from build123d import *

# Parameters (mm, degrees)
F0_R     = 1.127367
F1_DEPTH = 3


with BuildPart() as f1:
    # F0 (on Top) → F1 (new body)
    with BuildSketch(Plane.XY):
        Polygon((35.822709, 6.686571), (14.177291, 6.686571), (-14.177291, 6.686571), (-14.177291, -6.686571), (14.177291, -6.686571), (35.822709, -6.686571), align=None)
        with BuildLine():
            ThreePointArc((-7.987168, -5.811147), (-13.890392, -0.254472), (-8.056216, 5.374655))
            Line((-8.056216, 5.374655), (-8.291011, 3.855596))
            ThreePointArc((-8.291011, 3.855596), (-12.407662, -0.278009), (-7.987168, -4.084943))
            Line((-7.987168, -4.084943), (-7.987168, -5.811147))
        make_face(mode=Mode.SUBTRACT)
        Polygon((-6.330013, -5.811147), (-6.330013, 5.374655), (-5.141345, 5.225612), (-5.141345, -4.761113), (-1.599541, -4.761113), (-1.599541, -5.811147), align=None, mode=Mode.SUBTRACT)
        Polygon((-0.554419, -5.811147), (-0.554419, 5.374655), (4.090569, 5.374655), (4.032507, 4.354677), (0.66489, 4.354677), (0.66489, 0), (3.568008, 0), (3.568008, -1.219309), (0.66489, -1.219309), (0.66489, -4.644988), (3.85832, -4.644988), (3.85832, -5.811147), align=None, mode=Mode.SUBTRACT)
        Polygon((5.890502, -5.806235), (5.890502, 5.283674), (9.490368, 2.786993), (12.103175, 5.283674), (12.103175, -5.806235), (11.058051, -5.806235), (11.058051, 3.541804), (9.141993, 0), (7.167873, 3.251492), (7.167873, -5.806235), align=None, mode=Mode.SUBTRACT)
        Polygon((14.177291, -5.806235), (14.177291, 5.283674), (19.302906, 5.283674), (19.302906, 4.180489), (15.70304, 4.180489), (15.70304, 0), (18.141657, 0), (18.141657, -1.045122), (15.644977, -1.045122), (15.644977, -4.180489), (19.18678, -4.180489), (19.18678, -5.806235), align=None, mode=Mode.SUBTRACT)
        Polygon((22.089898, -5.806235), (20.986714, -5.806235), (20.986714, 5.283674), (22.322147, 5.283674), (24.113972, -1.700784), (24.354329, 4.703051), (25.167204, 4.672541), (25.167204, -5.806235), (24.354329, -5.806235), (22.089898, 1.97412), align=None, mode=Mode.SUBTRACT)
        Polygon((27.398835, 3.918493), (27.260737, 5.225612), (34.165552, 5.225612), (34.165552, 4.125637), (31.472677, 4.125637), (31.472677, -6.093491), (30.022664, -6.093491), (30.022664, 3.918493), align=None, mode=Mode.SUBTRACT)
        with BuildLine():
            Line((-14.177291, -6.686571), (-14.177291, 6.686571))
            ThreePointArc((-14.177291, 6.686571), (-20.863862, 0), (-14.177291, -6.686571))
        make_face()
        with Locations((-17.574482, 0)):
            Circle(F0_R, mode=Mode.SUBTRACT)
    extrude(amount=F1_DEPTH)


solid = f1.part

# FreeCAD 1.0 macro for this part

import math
import FreeCAD as App
import Part
import Sketcher

doc = App.newDocument("Part")
body = doc.addObject("PartDesign::Body", "Body")

sketch1 = doc.addObject("Sketcher::SketchObject", "Sketch")
body.addObject(sketch1)
sketch1.AttachmentSupport = (doc.XY_Plane, [""])
sketch1.MapMode = "FlatFace"
sketch1.addGeometry([
    Part.LineSegment(App.Vector(35.8, 6.7, 0), App.Vector(-14.2, 6.7, 0)),
    Part.ArcOfCircle(Part.Circle(App.Vector(-14.2, 0, 0), App.Vector(0, 0, 1), 6.7), math.radians(90), math.radians(270)),
    Part.LineSegment(App.Vector(-14.2, -6.7, 0), App.Vector(35.8, -6.7, 0)),
    Part.LineSegment(App.Vector(35.8, -6.7, 0), App.Vector(35.8, 6.7, 0)),
    Part.LineSegment(App.Vector(30, 3.9, 0), App.Vector(27.4, 3.9, 0)),
    Part.LineSegment(App.Vector(27.4, 3.9, 0), App.Vector(27.3, 5.2, 0)),
    Part.LineSegment(App.Vector(27.3, 5.2, 0), App.Vector(34.2, 5.2, 0)),
    Part.LineSegment(App.Vector(34.2, 5.2, 0), App.Vector(34.2, 4.1, 0)),
    Part.LineSegment(App.Vector(34.2, 4.1, 0), App.Vector(31.5, 4.1, 0)),
    Part.LineSegment(App.Vector(31.5, 4.1, 0), App.Vector(31.5, -6.1, 0)),
    Part.LineSegment(App.Vector(31.5, -6.1, 0), App.Vector(30, -6.1, 0)),
    Part.LineSegment(App.Vector(30, -6.1, 0), App.Vector(30, 3.9, 0)),
    Part.Circle(App.Vector(-17.6, 0, 0), App.Vector(0, 0, 1), 1.1),
    Part.LineSegment(App.Vector(-8, -4.1, 0), App.Vector(-8, -5.8, 0)),
    Part.ArcOfCircle(Part.Circle(App.Vector(-8.3, -0.2, 0), App.Vector(0, 0, 1), 5.6), math.radians(88), math.radians(273)),
    Part.LineSegment(App.Vector(-8.1, 5.4, 0), App.Vector(-8.3, 3.9, 0)),
    Part.ArcOfCircle(Part.Circle(App.Vector(-8.4, -0.1, 0), App.Vector(0, 0, 1), 4), math.radians(88), math.radians(276)),
    Part.LineSegment(App.Vector(-1.6, -5.8, 0), App.Vector(-6.3, -5.8, 0)),
    Part.LineSegment(App.Vector(-6.3, -5.8, 0), App.Vector(-6.3, 5.4, 0)),
    Part.LineSegment(App.Vector(-6.3, 5.4, 0), App.Vector(-5.1, 5.2, 0)),
    Part.LineSegment(App.Vector(-5.1, 5.2, 0), App.Vector(-5.1, -4.8, 0)),
    Part.LineSegment(App.Vector(-5.1, -4.8, 0), App.Vector(-1.6, -4.8, 0)),
    Part.LineSegment(App.Vector(-1.6, -4.8, 0), App.Vector(-1.6, -5.8, 0)),
    Part.LineSegment(App.Vector(3.9, -5.8, 0), App.Vector(-0.6, -5.8, 0)),
    Part.LineSegment(App.Vector(-0.6, -5.8, 0), App.Vector(-0.6, 5.4, 0)),
    Part.LineSegment(App.Vector(-0.6, 5.4, 0), App.Vector(4.1, 5.4, 0)),
    Part.LineSegment(App.Vector(4.1, 5.4, 0), App.Vector(4, 4.4, 0)),
    Part.LineSegment(App.Vector(4, 4.4, 0), App.Vector(0.7, 4.4, 0)),
    Part.LineSegment(App.Vector(0.7, 4.4, 0), App.Vector(0.7, 0, 0)),
    Part.LineSegment(App.Vector(0.7, 0, 0), App.Vector(3.6, 0, 0)),
    Part.LineSegment(App.Vector(3.6, 0, 0), App.Vector(3.6, -1.2, 0)),
    Part.LineSegment(App.Vector(3.6, -1.2, 0), App.Vector(0.7, -1.2, 0)),
    Part.LineSegment(App.Vector(0.7, -1.2, 0), App.Vector(0.7, -4.6, 0)),
    Part.LineSegment(App.Vector(0.7, -4.6, 0), App.Vector(3.9, -4.6, 0)),
    Part.LineSegment(App.Vector(3.9, -4.6, 0), App.Vector(3.9, -5.8, 0)),
    Part.LineSegment(App.Vector(7.2, -5.8, 0), App.Vector(5.9, -5.8, 0)),
    Part.LineSegment(App.Vector(5.9, -5.8, 0), App.Vector(5.9, 5.3, 0)),
    Part.LineSegment(App.Vector(5.9, 5.3, 0), App.Vector(9.5, 2.8, 0)),
    Part.LineSegment(App.Vector(9.5, 2.8, 0), App.Vector(12.1, 5.3, 0)),
    Part.LineSegment(App.Vector(12.1, 5.3, 0), App.Vector(12.1, -5.8, 0)),
    Part.LineSegment(App.Vector(12.1, -5.8, 0), App.Vector(11.1, -5.8, 0)),
    Part.LineSegment(App.Vector(11.1, -5.8, 0), App.Vector(11.1, 3.5, 0)),
    Part.LineSegment(App.Vector(11.1, 3.5, 0), App.Vector(9.1, 0, 0)),
    Part.LineSegment(App.Vector(9.1, 0, 0), App.Vector(7.2, 3.3, 0)),
    Part.LineSegment(App.Vector(7.2, 3.3, 0), App.Vector(7.2, -5.8, 0)),
    Part.LineSegment(App.Vector(19.2, -5.8, 0), App.Vector(14.2, -5.8, 0)),
    Part.LineSegment(App.Vector(14.2, -5.8, 0), App.Vector(14.2, 5.3, 0)),
    Part.LineSegment(App.Vector(14.2, 5.3, 0), App.Vector(19.3, 5.3, 0)),
    Part.LineSegment(App.Vector(19.3, 5.3, 0), App.Vector(19.3, 4.2, 0)),
    Part.LineSegment(App.Vector(19.3, 4.2, 0), App.Vector(15.7, 4.2, 0)),
    Part.LineSegment(App.Vector(15.7, 4.2, 0), App.Vector(15.7, 0, 0)),
    Part.LineSegment(App.Vector(15.7, 0, 0), App.Vector(18.1, 0, 0)),
    Part.LineSegment(App.Vector(18.1, 0, 0), App.Vector(18.1, -1, 0)),
    Part.LineSegment(App.Vector(18.1, -1, 0), App.Vector(15.6, -1, 0)),
    Part.LineSegment(App.Vector(15.6, -1, 0), App.Vector(15.6, -4.2, 0)),
    Part.LineSegment(App.Vector(15.6, -4.2, 0), App.Vector(19.2, -4.2, 0)),
    Part.LineSegment(App.Vector(19.2, -4.2, 0), App.Vector(19.2, -5.8, 0)),
    Part.LineSegment(App.Vector(22.1, 2, 0), App.Vector(22.1, -5.8, 0)),
    Part.LineSegment(App.Vector(22.1, -5.8, 0), App.Vector(21, -5.8, 0)),
    Part.LineSegment(App.Vector(21, -5.8, 0), App.Vector(21, 5.3, 0)),
    Part.LineSegment(App.Vector(21, 5.3, 0), App.Vector(22.3, 5.3, 0)),
    Part.LineSegment(App.Vector(22.3, 5.3, 0), App.Vector(24.1, -1.7, 0)),
    Part.LineSegment(App.Vector(24.1, -1.7, 0), App.Vector(24.4, 4.7, 0)),
    Part.LineSegment(App.Vector(24.4, 4.7, 0), App.Vector(25.2, 4.7, 0)),
    Part.LineSegment(App.Vector(25.2, 4.7, 0), App.Vector(25.2, -5.8, 0)),
    Part.LineSegment(App.Vector(25.2, -5.8, 0), App.Vector(24.4, -5.8, 0)),
    Part.LineSegment(App.Vector(24.4, -5.8, 0), App.Vector(22.1, 2, 0)),
], False)
sketch1.addConstraint([
    Sketcher.Constraint("Tangent", 0, 2, 1, 1),
    Sketcher.Constraint("Tangent", 1, 2, 2, 1),
    Sketcher.Constraint("Coincident", 2, 2, 3, 1),
    Sketcher.Constraint("Coincident", 3, 2, 0, 1),
    Sketcher.Constraint("Coincident", 4, 2, 5, 1),
    Sketcher.Constraint("Coincident", 5, 2, 6, 1),
    Sketcher.Constraint("Coincident", 6, 2, 7, 1),
    Sketcher.Constraint("Coincident", 7, 2, 8, 1),
    Sketcher.Constraint("Coincident", 8, 2, 9, 1),
    Sketcher.Constraint("Coincident", 9, 2, 10, 1),
    Sketcher.Constraint("Coincident", 10, 2, 11, 1),
    Sketcher.Constraint("Coincident", 11, 2, 4, 1),
    Sketcher.Constraint("Coincident", 13, 2, 14, 2),
    Sketcher.Constraint("Coincident", 14, 1, 15, 1),
    Sketcher.Constraint("Coincident", 15, 2, 16, 1),
    Sketcher.Constraint("Coincident", 16, 2, 13, 1),
    Sketcher.Constraint("Coincident", 17, 2, 18, 1),
    Sketcher.Constraint("Coincident", 18, 2, 19, 1),
    Sketcher.Constraint("Coincident", 19, 2, 20, 1),
    Sketcher.Constraint("Coincident", 20, 2, 21, 1),
    Sketcher.Constraint("Coincident", 21, 2, 22, 1),
    Sketcher.Constraint("Coincident", 22, 2, 17, 1),
    Sketcher.Constraint("Coincident", 23, 2, 24, 1),
    Sketcher.Constraint("Coincident", 24, 2, 25, 1),
    Sketcher.Constraint("Coincident", 25, 2, 26, 1),
    Sketcher.Constraint("Coincident", 26, 2, 27, 1),
    Sketcher.Constraint("Coincident", 27, 2, 28, 1),
    Sketcher.Constraint("Coincident", 28, 2, 29, 1),
    Sketcher.Constraint("Coincident", 29, 2, 30, 1),
    Sketcher.Constraint("Coincident", 30, 2, 31, 1),
    Sketcher.Constraint("Coincident", 31, 2, 32, 1),
    Sketcher.Constraint("Coincident", 32, 2, 33, 1),
    Sketcher.Constraint("Coincident", 33, 2, 34, 1),
    Sketcher.Constraint("Coincident", 34, 2, 23, 1),
    Sketcher.Constraint("Coincident", 35, 2, 36, 1),
    Sketcher.Constraint("Coincident", 36, 2, 37, 1),
    Sketcher.Constraint("Coincident", 37, 2, 38, 1),
    Sketcher.Constraint("Coincident", 38, 2, 39, 1),
    Sketcher.Constraint("Coincident", 39, 2, 40, 1),
    Sketcher.Constraint("Coincident", 40, 2, 41, 1),
    Sketcher.Constraint("Coincident", 41, 2, 42, 1),
    Sketcher.Constraint("Coincident", 42, 2, 43, 1),
    Sketcher.Constraint("Coincident", 43, 2, 44, 1),
    Sketcher.Constraint("Coincident", 44, 2, 35, 1),
    Sketcher.Constraint("Coincident", 45, 2, 46, 1),
    Sketcher.Constraint("Coincident", 46, 2, 47, 1),
    Sketcher.Constraint("Coincident", 47, 2, 48, 1),
    Sketcher.Constraint("Coincident", 48, 2, 49, 1),
    Sketcher.Constraint("Coincident", 49, 2, 50, 1),
    Sketcher.Constraint("Coincident", 50, 2, 51, 1),
    Sketcher.Constraint("Coincident", 51, 2, 52, 1),
    Sketcher.Constraint("Coincident", 52, 2, 53, 1),
    Sketcher.Constraint("Coincident", 53, 2, 54, 1),
    Sketcher.Constraint("Coincident", 54, 2, 55, 1),
    Sketcher.Constraint("Coincident", 55, 2, 56, 1),
    Sketcher.Constraint("Coincident", 56, 2, 45, 1),
    Sketcher.Constraint("Coincident", 57, 2, 58, 1),
    Sketcher.Constraint("Coincident", 58, 2, 59, 1),
    Sketcher.Constraint("Coincident", 59, 2, 60, 1),
    Sketcher.Constraint("Coincident", 60, 2, 61, 1),
    Sketcher.Constraint("Coincident", 61, 2, 62, 1),
    Sketcher.Constraint("Coincident", 62, 2, 63, 1),
    Sketcher.Constraint("Coincident", 63, 2, 64, 1),
    Sketcher.Constraint("Coincident", 64, 2, 65, 1),
    Sketcher.Constraint("Coincident", 65, 2, 66, 1),
    Sketcher.Constraint("Coincident", 66, 2, 57, 1),
    Sketcher.Constraint("Horizontal", 0),
    Sketcher.Constraint("Horizontal", 2),
    Sketcher.Constraint("Vertical", 3),
    Sketcher.Constraint("Horizontal", 4),
    Sketcher.Constraint("Horizontal", 6),
    Sketcher.Constraint("Vertical", 7),
    Sketcher.Constraint("Horizontal", 8),
    Sketcher.Constraint("Vertical", 9),
    Sketcher.Constraint("Horizontal", 10),
    Sketcher.Constraint("Vertical", 11),
    Sketcher.Constraint("Vertical", 13),
    Sketcher.Constraint("Horizontal", 17),
    Sketcher.Constraint("Vertical", 18),
    Sketcher.Constraint("Vertical", 20),
    Sketcher.Constraint("Horizontal", 21),
    Sketcher.Constraint("Vertical", 22),
    Sketcher.Constraint("Horizontal", 23),
    Sketcher.Constraint("Vertical", 24),
    Sketcher.Constraint("Horizontal", 25),
    Sketcher.Constraint("Horizontal", 27),
    Sketcher.Constraint("Vertical", 28),
    Sketcher.Constraint("Horizontal", 29),
    Sketcher.Constraint("Vertical", 30),
    Sketcher.Constraint("Horizontal", 31),
    Sketcher.Constraint("Vertical", 32),
    Sketcher.Constraint("Horizontal", 33),
    Sketcher.Constraint("Vertical", 34),
    Sketcher.Constraint("Horizontal", 35),
    Sketcher.Constraint("Vertical", 36),
    Sketcher.Constraint("Vertical", 39),
    Sketcher.Constraint("Horizontal", 40),
    Sketcher.Constraint("Vertical", 41),
    Sketcher.Constraint("Vertical", 44),
    Sketcher.Constraint("Horizontal", 45),
    Sketcher.Constraint("Vertical", 46),
    Sketcher.Constraint("Horizontal", 47),
    Sketcher.Constraint("Vertical", 48),
    Sketcher.Constraint("Horizontal", 49),
    Sketcher.Constraint("Vertical", 50),
    Sketcher.Constraint("Horizontal", 51),
    Sketcher.Constraint("Vertical", 52),
    Sketcher.Constraint("Horizontal", 53),
    Sketcher.Constraint("Vertical", 54),
    Sketcher.Constraint("Horizontal", 55),
    Sketcher.Constraint("Vertical", 56),
    Sketcher.Constraint("Vertical", 57),
    Sketcher.Constraint("Horizontal", 58),
    Sketcher.Constraint("Vertical", 59),
    Sketcher.Constraint("Horizontal", 60),
    Sketcher.Constraint("Vertical", 64),
    Sketcher.Constraint("Horizontal", 65),
    Sketcher.Constraint("PointOnObject", 1, 3, -1),
    Sketcher.Constraint("PointOnObject", 12, 3, -1),
    Sketcher.Constraint("PointOnObject", 28, 2, -1),
    Sketcher.Constraint("PointOnObject", 42, 2, -1),
    Sketcher.Constraint("PointOnObject", 50, 2, -1),
    Sketcher.Constraint("Perpendicular", 62, 63),
    Sketcher.Constraint("Horizontal", 13, 2, 17, 2),
    Sketcher.Constraint("Horizontal", 14, 1, 18, 2),
    Sketcher.Constraint("Horizontal", 6, 2, 19, 2),
    Sketcher.Constraint("Horizontal", 22, 2, 23, 2),
    Sketcher.Constraint("Horizontal", 18, 2, 24, 2),
    Sketcher.Constraint("Horizontal", 36, 2, 38, 2),
    Sketcher.Constraint("Horizontal", 35, 2, 39, 2),
    Sketcher.Constraint("Horizontal", 44, 2, 45, 2),
    Sketcher.Constraint("Horizontal", 38, 2, 46, 2),
    Sketcher.Constraint("Horizontal", 56, 2, 57, 2),
    Sketcher.Constraint("Horizontal", 47, 2, 59, 2),
    Sketcher.Constraint("Horizontal", 58, 2, 64, 2),
    Sketcher.Constraint("Vertical", 14, 3, 15, 2),
    Sketcher.Constraint("Vertical", 28, 2, 31, 2),
    Sketcher.Constraint("Vertical", 62, 2, 65, 2),
    Sketcher.Constraint("Equal", 21, 55),
    Sketcher.Constraint("Equal", 58, 48),
    Sketcher.Constraint("Equal", 40, 52),
    Sketcher.Constraint("DistanceX", 0, 2, 0, 1, 50.0),
    Sketcher.Constraint("Radius", 1, 6.686571),
    Sketcher.Constraint("Radius", 14, 5.599488),
    Sketcher.Constraint("Diameter", 12, 2.254734),
    Sketcher.Constraint("DistanceY", 18, 1, 18, 2, 11.185802),
    Sketcher.Constraint("Radius", 16, 3.983606),
    Sketcher.Constraint("DistanceX", 4, 2, 4, 1, 2.623829),
    Sketcher.Constraint("DistanceX", 17, 2, 17, 1, 4.730472),
    Sketcher.Constraint("DistanceX", 23, 2, 23, 1, 4.412739),
    Sketcher.Constraint("DistanceX", 25, 1, 25, 2, 4.644988),
    Sketcher.Constraint("DistanceX", 29, 1, 29, 2, 2.903118),
    Sketcher.Constraint("DistanceX", 33, 1, 33, 2, 3.19343),
    Sketcher.Constraint("DistanceX", 35, 2, 35, 1, 1.277371),
    Sketcher.Constraint("DistanceX", 45, 2, 45, 1, 5.009489),
    Sketcher.Constraint("DistanceX", 53, 2, 53, 1, 2.49668),
    Sketcher.Constraint("DistanceY", 9, 2, 9, 1, 10.219128),
    Sketcher.Constraint("DistanceY", 30, 2, 30, 1, 1.219309),
    Sketcher.Constraint("DistanceY", 32, 2, 32, 1, 3.425679),
    Sketcher.Constraint("DistanceY", 34, 2, 34, 1, 1.166159),
    Sketcher.Constraint("DistanceY", 36, 1, 36, 2, 11.089909),
    Sketcher.Constraint("DistanceY", 41, 1, 41, 2, 9.348039),
    Sketcher.Constraint("DistanceY", 50, 2, 50, 1, 4.180489),
    Sketcher.Constraint("DistanceX", -1, 1, 35, 2, 5.890502),
    Sketcher.Constraint("DistanceX", -1, 1, 57, 2, 22.089898),
    Sketcher.Constraint("Distance", 26, 1.021629),
    Sketcher.Constraint("Distance", 37, 4.380919),
    Sketcher.Constraint("Distance", 43, 3.80386),
    Sketcher.Constraint("DistanceX", 6, 1, 6, 2, 6.904815),
    Sketcher.Constraint("DistanceX", 8, 2, 8, 1, 2.692875),
    Sketcher.Constraint("DistanceX", 10, 2, 10, 1, 1.450013),
    Sketcher.Constraint("DistanceX", 21, 1, 21, 2, 3.541804),
    Sketcher.Constraint("DistanceX", 27, 2, 27, 1, 3.367617),
    Sketcher.Constraint("DistanceX", 40, 2, 40, 1, 1.045124),
    Sketcher.Constraint("DistanceX", 47, 1, 47, 2, 5.125615),
    Sketcher.Constraint("DistanceX", 49, 2, 49, 1, 3.599866),
    Sketcher.Constraint("DistanceX", 58, 2, 58, 1, 1.103184),
    Sketcher.Constraint("DistanceX", 60, 1, 60, 2, 1.335433),
    Sketcher.Constraint("DistanceX", 65, 2, 65, 1, 0.812875),
    Sketcher.Constraint("DistanceY", 7, 2, 7, 1, 1.099975),
    Sketcher.Constraint("DistanceY", 11, 1, 11, 2, 10.011984),
    Sketcher.Constraint("DistanceY", 13, 2, 13, 1, 1.726204),
    Sketcher.Constraint("DistanceY", 20, 2, 20, 1, 9.986725),
    Sketcher.Constraint("DistanceY", 22, 2, 22, 1, 1.050034),
    Sketcher.Constraint("DistanceY", 44, 2, 44, 1, 9.057727),
    Sketcher.Constraint("DistanceY", 54, 2, 54, 1, 3.135367),
    Sketcher.Constraint("DistanceY", 57, 2, 57, 1, 7.780355),
    Sketcher.Constraint("DistanceY", 64, 2, 64, 1, 10.478776),
    Sketcher.Constraint("DistanceX", 1, 3, -1, 1, 14.177291),
    Sketcher.Constraint("DistanceX", 12, 3, -1, 1, 17.574482),
    Sketcher.Constraint("DistanceX", 14, 3, -1, 1, 8.29101),
    Sketcher.Constraint("DistanceY", 14, 3, -1, 1, 0.219908),
    Sketcher.Constraint("DistanceX", 16, 3, -1, 1, 8.426969),
    Sketcher.Constraint("DistanceX", -1, 1, 6, 2, 34.165552),
    Sketcher.Constraint("DistanceX", 21, 2, -1, 1, 1.599541),
    Sketcher.Constraint("DistanceX", 23, 2, -1, 1, 0.554419),
    Sketcher.Constraint("DistanceX", -1, 1, 40, 2, 11.058051),
    Sketcher.Constraint("DistanceX", -1, 1, 45, 2, 14.177291),
    Sketcher.Constraint("DistanceX", -1, 1, 62, 2, 24.354329),
    Sketcher.Constraint("DistanceY", -1, 1, 62, 2, 4.703051),
    Sketcher.Constraint("Distance", 38, 3.613887),
    Sketcher.Constraint("Distance", 61, 7.210637),
])
pad1 = doc.addObject("PartDesign::Pad", "Pad")
body.addObject(pad1)
pad1.Profile = sketch1
pad1.Length = 3

doc.recompute()
